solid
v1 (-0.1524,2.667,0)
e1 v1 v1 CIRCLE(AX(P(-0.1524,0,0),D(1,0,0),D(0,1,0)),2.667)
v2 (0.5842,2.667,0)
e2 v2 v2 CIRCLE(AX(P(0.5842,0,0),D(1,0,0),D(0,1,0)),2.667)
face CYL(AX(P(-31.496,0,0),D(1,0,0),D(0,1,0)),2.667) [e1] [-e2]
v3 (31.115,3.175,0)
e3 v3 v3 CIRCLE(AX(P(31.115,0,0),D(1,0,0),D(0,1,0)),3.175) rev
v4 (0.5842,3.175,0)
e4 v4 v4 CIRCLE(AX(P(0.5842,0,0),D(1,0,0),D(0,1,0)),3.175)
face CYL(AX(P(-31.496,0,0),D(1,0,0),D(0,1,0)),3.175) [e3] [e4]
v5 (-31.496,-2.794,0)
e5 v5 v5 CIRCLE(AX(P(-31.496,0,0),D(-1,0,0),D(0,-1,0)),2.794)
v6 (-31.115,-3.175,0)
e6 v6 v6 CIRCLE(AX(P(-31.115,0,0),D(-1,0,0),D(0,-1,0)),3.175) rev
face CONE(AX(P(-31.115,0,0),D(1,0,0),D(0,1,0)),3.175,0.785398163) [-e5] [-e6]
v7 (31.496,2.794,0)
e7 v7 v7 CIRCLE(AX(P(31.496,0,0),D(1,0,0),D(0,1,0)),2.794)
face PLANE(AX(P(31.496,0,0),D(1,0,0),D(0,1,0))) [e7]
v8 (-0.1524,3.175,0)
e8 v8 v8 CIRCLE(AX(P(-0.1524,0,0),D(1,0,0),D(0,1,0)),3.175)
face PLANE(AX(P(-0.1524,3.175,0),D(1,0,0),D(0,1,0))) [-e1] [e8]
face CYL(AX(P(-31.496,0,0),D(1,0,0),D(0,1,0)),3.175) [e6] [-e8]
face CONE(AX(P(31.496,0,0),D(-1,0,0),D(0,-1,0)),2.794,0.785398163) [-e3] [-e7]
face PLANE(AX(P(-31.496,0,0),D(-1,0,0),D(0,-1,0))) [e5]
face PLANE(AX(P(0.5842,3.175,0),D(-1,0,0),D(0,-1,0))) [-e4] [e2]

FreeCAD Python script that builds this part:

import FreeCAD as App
import Part
import Sketcher
Q = App.Units.Quantity


def edges_at(feature, points):
    """Names of the edges that pass closest to the given points."""
    edges = feature.Shape.Edges
    near = lambda p: min(range(len(edges)), key=lambda i: edges[i].distToShape(Part.Vertex(*p))[0])
    return sorted({f"Edge{near(p) + 1}" for p in points})


def add_polygon(sketch, points):
    """Adds a closed chain of lines whose ends are joined by coincident constraints."""
    first, n = sketch.GeometryCount, len(points)
    for a, b in zip(points, points[1:] + points[:1]):
        sketch.addGeometry(Part.LineSegment(App.Vector(*a, 0), App.Vector(*b, 0)), False)
    for i in range(n):
        sketch.addConstraint(Sketcher.Constraint("Coincident", first + i, 2, first + (i + 1) % n, 1))

doc = App.newDocument("Part")
params = doc.addObject("Spreadsheet::Sheet", "Params")
for row, (alias, value) in enumerate([
    ("sketch1_width", "2.48 in"),
    ("sketch1_height", "0.02 in"),
    ("sketch1_width2", "1.217 in"),
    ("sketch1_width3", "0.029 in"),
    ("sketch1_height2", "0.125 in"),
    ("revolution_angle", "360 deg"),
    ("chamfer_size", "0.015 in"),
], start=1):
    params.set(f"A{row}", alias)
    params.set(f"B{row}", "=" + value)
    params.setAlias(f"B{row}", alias)

body = doc.addObject("PartDesign::Body", "Body")

# Sketch on XY plane
sketch1 = doc.addObject("Sketcher::SketchObject", "Sketch")
body.addObject(sketch1)
sketch1.AttachmentSupport = (doc.XY_Plane, [""])
sketch1.MapMode = "FlatFace"
add_polygon(sketch1, [(-31.5, 0), (31.5, 0), (31.5, 3.2), (0.6, 3.2), (0.6, 2.7), (-0.2, 2.7), (-0.2, 3.2), (-31.5, 3.2)])  # lines 0-7
sketch1.addConstraint([
    Sketcher.Constraint("Horizontal", 0),
    Sketcher.Constraint("Vertical", 1),
    Sketcher.Constraint("Horizontal", 2),
    Sketcher.Constraint("Vertical", 3),
    Sketcher.Constraint("Horizontal", 4),
    Sketcher.Constraint("Vertical", 5),
    Sketcher.Constraint("Horizontal", 6),
    Sketcher.Constraint("Vertical", 7),
    Sketcher.Constraint("Symmetric", 0, 2, 7, 2, -1, 1),
    Sketcher.Constraint("Horizontal", 2, 2, 5, 2),
    Sketcher.Constraint("DistanceX", 0, 1, 0, 2, Q("2.48 in")),
    Sketcher.Constraint("DistanceY", 3, 2, 3, 1, Q("0.02 in")),
    Sketcher.Constraint("DistanceX", 2, 2, 2, 1, Q("1.217 in")),
    Sketcher.Constraint("DistanceX", 4, 2, 4, 1, Q("0.029 in")),
    Sketcher.Constraint("DistanceY", 1, 1, 1, 2, Q("0.125 in")),
])
sketch1.setExpression("Constraints[18]", "Params.sketch1_width")
sketch1.setExpression("Constraints[19]", "Params.sketch1_height")
sketch1.setExpression("Constraints[20]", "Params.sketch1_width2")
sketch1.setExpression("Constraints[21]", "Params.sketch1_width3")
sketch1.setExpression("Constraints[22]", "Params.sketch1_height2")
revolution = doc.addObject("PartDesign::Revolution", "Revolution")
body.addObject(revolution)
revolution.Profile = sketch1
revolution.ReferenceAxis = (sketch1, ["H_Axis"])
revolution.setExpression("Angle", "Params.revolution_angle")
doc.recompute()

chamfer = doc.addObject("PartDesign::Chamfer", "Chamfer")
body.addObject(chamfer)
chamfer.Base = (revolution, edges_at(revolution, [(31.496, -3.175, 0), (-31.496, -3.175, 0)]))
chamfer.setExpression("Size", "Params.chamfer_size")

doc.recompute()
